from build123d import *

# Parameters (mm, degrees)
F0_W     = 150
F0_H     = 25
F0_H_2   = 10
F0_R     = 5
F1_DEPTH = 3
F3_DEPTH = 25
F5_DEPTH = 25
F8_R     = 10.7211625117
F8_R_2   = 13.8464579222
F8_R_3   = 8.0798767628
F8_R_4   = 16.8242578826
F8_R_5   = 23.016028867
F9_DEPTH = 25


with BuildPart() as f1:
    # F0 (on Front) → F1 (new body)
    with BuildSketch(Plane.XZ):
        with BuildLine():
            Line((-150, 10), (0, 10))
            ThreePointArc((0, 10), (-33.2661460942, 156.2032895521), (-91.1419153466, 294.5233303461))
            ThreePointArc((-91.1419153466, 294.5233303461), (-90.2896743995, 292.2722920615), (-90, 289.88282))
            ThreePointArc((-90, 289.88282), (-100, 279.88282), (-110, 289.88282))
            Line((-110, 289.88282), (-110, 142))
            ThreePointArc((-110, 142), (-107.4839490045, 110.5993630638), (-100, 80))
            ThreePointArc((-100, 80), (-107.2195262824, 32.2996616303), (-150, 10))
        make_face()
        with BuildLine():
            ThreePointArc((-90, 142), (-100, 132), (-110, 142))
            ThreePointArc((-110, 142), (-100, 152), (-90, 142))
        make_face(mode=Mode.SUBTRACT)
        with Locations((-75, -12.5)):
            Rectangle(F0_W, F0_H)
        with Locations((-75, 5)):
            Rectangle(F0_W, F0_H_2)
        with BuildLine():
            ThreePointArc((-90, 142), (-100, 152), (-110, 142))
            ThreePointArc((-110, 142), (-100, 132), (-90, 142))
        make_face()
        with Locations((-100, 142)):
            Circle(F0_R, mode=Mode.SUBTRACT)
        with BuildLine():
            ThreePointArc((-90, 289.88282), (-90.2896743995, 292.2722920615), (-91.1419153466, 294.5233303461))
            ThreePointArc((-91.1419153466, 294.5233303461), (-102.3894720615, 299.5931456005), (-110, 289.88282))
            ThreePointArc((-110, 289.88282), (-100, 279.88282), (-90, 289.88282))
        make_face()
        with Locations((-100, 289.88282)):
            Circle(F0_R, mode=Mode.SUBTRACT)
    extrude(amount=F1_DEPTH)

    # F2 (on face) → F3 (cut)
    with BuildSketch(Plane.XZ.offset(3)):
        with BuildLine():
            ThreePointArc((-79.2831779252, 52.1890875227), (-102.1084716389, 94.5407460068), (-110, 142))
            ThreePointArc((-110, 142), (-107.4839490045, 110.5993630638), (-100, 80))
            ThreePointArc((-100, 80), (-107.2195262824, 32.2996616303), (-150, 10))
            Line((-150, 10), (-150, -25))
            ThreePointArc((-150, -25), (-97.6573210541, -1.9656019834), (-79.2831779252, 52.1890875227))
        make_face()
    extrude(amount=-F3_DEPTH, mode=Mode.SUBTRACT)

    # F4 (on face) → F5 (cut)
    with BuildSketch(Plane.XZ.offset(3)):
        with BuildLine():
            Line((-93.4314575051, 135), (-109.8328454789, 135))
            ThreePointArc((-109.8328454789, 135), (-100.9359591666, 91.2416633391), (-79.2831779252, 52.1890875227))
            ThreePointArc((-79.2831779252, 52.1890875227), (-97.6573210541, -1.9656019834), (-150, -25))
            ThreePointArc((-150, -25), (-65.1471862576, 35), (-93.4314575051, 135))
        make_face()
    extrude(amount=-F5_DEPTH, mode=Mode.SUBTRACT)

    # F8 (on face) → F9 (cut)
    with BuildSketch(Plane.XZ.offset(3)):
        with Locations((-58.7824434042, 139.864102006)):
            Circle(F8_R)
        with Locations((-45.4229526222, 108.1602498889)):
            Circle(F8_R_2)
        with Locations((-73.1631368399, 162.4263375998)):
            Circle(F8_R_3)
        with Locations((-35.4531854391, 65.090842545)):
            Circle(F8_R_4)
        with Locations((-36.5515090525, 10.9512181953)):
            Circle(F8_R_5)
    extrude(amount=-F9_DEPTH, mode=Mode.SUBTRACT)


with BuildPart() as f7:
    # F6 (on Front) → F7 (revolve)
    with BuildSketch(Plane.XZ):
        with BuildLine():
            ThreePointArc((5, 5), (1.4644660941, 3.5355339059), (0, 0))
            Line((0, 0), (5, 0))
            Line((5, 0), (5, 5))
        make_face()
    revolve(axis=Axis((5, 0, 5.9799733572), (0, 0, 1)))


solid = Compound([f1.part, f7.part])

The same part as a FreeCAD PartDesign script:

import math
import FreeCAD as App
import Part
import Sketcher

V = App.Vector

doc = App.newDocument("Part")
body = doc.addObject("PartDesign::Body", "Body")

sketch1 = doc.addObject("Sketcher::SketchObject", "Sketch")
body.addObject(sketch1)
sketch1.AttachmentSupport = (doc.XZ_Plane, [""])
sketch1.MapMode = "FlatFace"
sketch1.addGeometry([
    Part.LineSegment(V(-110, 290, 0), V(-110, 142, 0)),
    Part.ArcOfCircle(Part.Circle(V(87, 142, 0), V(0, 0, 1), 197), math.radians(180), math.radians(198.32)),
    Part.ArcOfCircle(Part.Circle(V(-151, 63, 0), V(0, 0, 1), 53), math.radians(-89), math.radians(18)),
    Part.LineSegment(V(-150, 10, 0), V(-150, -25, 0)),
    Part.LineSegment(V(-150, -25, 0), V(0, -25, 0)),
    Part.LineSegment(V(0, -25, 0), V(0, 10, 0)),
    Part.ArcOfCircle(Part.Circle(V(-862, -109, 0), V(0, 0, 1), 870), math.radians(7.88), math.radians(27.65)),
    Part.ArcOfCircle(Part.Circle(V(-100, 290, 0), V(0, 0, 1), 10), math.radians(28), math.radians(180)),
    Part.Circle(V(-100, 142, 0), V(0, 0, 1), 5),
    Part.Circle(V(-100, 290, 0), V(0, 0, 1), 5),
], False)
sketch1.addConstraint([
    Sketcher.Constraint("Tangent", 0, 2, 1, 1),
    Sketcher.Constraint("Tangent", 1, 2, 2, 2),
    Sketcher.Constraint("Coincident", 2, 1, 3, 1),
    Sketcher.Constraint("Coincident", 3, 2, 4, 1),
    Sketcher.Constraint("Coincident", 4, 2, 5, 1),
    Sketcher.Constraint("Coincident", 5, 2, 6, 1),
    Sketcher.Constraint("Tangent", 6, 2, 7, 1),
    Sketcher.Constraint("Tangent", 7, 2, 0, 1),
    Sketcher.Constraint("Vertical", 0),
    Sketcher.Constraint("Vertical", 3),
    Sketcher.Constraint("Horizontal", 4),
    Sketcher.Constraint("Vertical", 5),
    Sketcher.Constraint("Coincident", 9, 3, 7, 3),
    Sketcher.Constraint("Equal", 8, 9),
    Sketcher.Constraint("PointOnObject", 4, 2, -2),
    Sketcher.Constraint("Horizontal", 1, 3, 8, 3),
    Sketcher.Constraint("Horizontal", 2, 1, 5, 2),
    Sketcher.Constraint("Vertical", 7, 3, 8, 3),
    Sketcher.Constraint("Vertical", 9, 3, 1, 2),
    Sketcher.Constraint("Diameter", 8, 10.0),
    Sketcher.Constraint("Radius", 6, 870.0),
    Sketcher.Constraint("Radius", 7, 10.0),
    Sketcher.Constraint("Radius", 1, 197.2),
    Sketcher.Constraint("DistanceX", 4, 1, 4, 2, 150.0),
    Sketcher.Constraint("DistanceY", 3, 2, 3, 1, 35.0),
    Sketcher.Constraint("DistanceY", -1, 1, 1, 3, 142.0),
    Sketcher.Constraint("DistanceX", 7, 3, -1, 1, 100.0),
    Sketcher.Constraint("DistanceY", -1, 1, 2, 1, 10.0),
    Sketcher.Constraint("DistanceY", 0, 2, 0, 1, 147.88282),
])
pad1 = doc.addObject("PartDesign::Pad", "Pad")
body.addObject(pad1)
pad1.Profile = sketch1
pad1.Length = 3

sketch2 = doc.addObject("Sketcher::SketchObject", "Sketch001")
body.addObject(sketch2)
sketch2.AttachmentSupport = (doc.XZ_Plane, [""])
sketch2.MapMode = "FlatFace"
sketch2.AttachmentOffset = App.Placement(V(0, 0, 3), App.Rotation())
sketch2.addGeometry([
    Part.ArcOfCircle(Part.Circle(V(37, 142, 0), V(0, 0, 1), 147), math.radians(180), math.radians(218)),
    Part.ArcOfCircle(Part.Circle(V(87, 142, 0), V(0, 0, 1), 197), math.radians(180), math.radians(198.32)),
    Part.ArcOfCircle(Part.Circle(V(-151, 63, 0), V(0, 0, 1), 53), math.radians(-89), math.radians(18)),
    Part.LineSegment(V(-150, 10, 0), V(-150, -25, 0)),
    Part.ArcOfCircle(Part.Circle(V(-150, 46, 0), V(0, 0, 1), 71), math.radians(-90), math.radians(5)),
], False)
sketch2.addConstraint([
    Sketcher.Constraint("Tangent", 0, 1, 1, 1),
    Sketcher.Constraint("Tangent", 1, 2, 2, 2),
    Sketcher.Constraint("Coincident", 2, 1, 3, 1),
    Sketcher.Constraint("Coincident", 3, 2, 4, 1),
    Sketcher.Constraint("Coincident", 4, 2, 0, 2),
    Sketcher.Constraint("Vertical", 3),
    Sketcher.Constraint("Horizontal", 0, 3, 1, 3),
    Sketcher.Constraint("Vertical", 4, 3, 2, 1),
    Sketcher.Constraint("Radius", 1, 197.2),
    Sketcher.Constraint("DistanceY", 3, 2, 3, 1, 35.0),
    Sketcher.Constraint("DistanceY", -1, 1, 0, 3, 142.0),
    Sketcher.Constraint("DistanceX", 4, 3, -1, 1, 150.0),
    Sketcher.Constraint("DistanceX", 0, 1, -1, 1, 110.0),
    Sketcher.Constraint("DistanceX", 1, 2, -1, 1, 100.0),
    Sketcher.Constraint("DistanceY", -1, 1, 2, 1, 10.0),
    Sketcher.Constraint("Radius", 4, 70.98817),
    Sketcher.Constraint("Radius", 0, 146.654545),
])
pocket1 = doc.addObject("PartDesign::Pocket", "Pocket")
body.addObject(pocket1)
pocket1.Profile = sketch2
pocket1.Length = 25

sketch3 = doc.addObject("Sketcher::SketchObject", "Sketch002")
body.addObject(sketch3)
sketch3.AttachmentSupport = (doc.XZ_Plane, [""])
sketch3.MapMode = "FlatFace"
sketch3.AttachmentOffset = App.Placement(V(0, 0, 3), App.Rotation())
sketch3.addGeometry([
    Part.LineSegment(V(-93, 135, 0), V(-110, 135, 0)),
    Part.ArcOfCircle(Part.Circle(V(37, 142, 0), V(0, 0, 1), 147), math.radians(-177), math.radians(-142)),
    Part.ArcOfCircle(Part.Circle(V(-150, 46, 0), V(0, 0, 1), 71), math.radians(-90), math.radians(5)),
    Part.ArcOfCircle(Part.Circle(V(-150, 65, 0), V(0, 0, 1), 90), math.radians(-90), math.radians(51)),
], False)
sketch3.addConstraint([
    Sketcher.Constraint("Coincident", 0, 2, 1, 1),
    Sketcher.Constraint("Coincident", 1, 2, 2, 2),
    Sketcher.Constraint("Tangent", 2, 1, 3, 1),
    Sketcher.Constraint("Coincident", 3, 2, 0, 1),
    Sketcher.Constraint("Horizontal", 0),
    Sketcher.Constraint("Vertical", 2, 3, 3, 3),
    Sketcher.Constraint("Radius", 3, 90.0),
    Sketcher.Constraint("DistanceY", -1, 1, 1, 3, 142.0),
    Sketcher.Constraint("DistanceX", 2, 3, -1, 1, 150.0),
    Sketcher.Constraint("DistanceY", -1, 1, 3, 3, 65.0),
    Sketcher.Constraint("DistanceY", -1, 1, 0, 2, 135.0),
    Sketcher.Constraint("Radius", 2, 70.98817),
    Sketcher.Constraint("Radius", 1, 146.654545),
    Sketcher.Constraint("DistanceX", 0, 2, 0, 1, 16.401388),
])
pocket2 = doc.addObject("PartDesign::Pocket", "Pocket001")
body.addObject(pocket2)
pocket2.Profile = sketch3
pocket2.Length = 25

sketch4 = doc.addObject("Sketcher::SketchObject", "Sketch003")
body.addObject(sketch4)
sketch4.AttachmentSupport = (doc.XZ_Plane, [""])
sketch4.MapMode = "FlatFace"
sketch4.AttachmentOffset = App.Placement(V(0, 0, 3), App.Rotation())
sketch4.addGeometry([
    Part.Circle(V(-59, 140, 0), V(0, 0, 1), 11),
    Part.Circle(V(-45, 108, 0), V(0, 0, 1), 14),
    Part.Circle(V(-73, 162, 0), V(0, 0, 1), 8),
    Part.Circle(V(-35, 65, 0), V(0, 0, 1), 17),
    Part.Circle(V(-37, 11, 0), V(0, 0, 1), 23),
], False)
sketch4.addConstraint([
    Sketcher.Constraint("Diameter", 0, 21.442325),
    Sketcher.Constraint("Diameter", 1, 27.692916),
    Sketcher.Constraint("Diameter", 2, 16.159754),
    Sketcher.Constraint("Diameter", 3, 33.648516),
    Sketcher.Constraint("Diameter", 4, 46.032058),
    Sketcher.Constraint("DistanceY", -1, 1, 1, 3, 108.16025),
    Sketcher.Constraint("DistanceX", 4, 3, -1, 1, 36.551509),
    Sketcher.Constraint("DistanceY", -1, 1, 4, 3, 10.951218),
    Sketcher.Constraint("DistanceX", 0, 3, 1, 3, 13.359491),
    Sketcher.Constraint("DistanceY", 3, 3, 0, 3, 74.773259),
    Sketcher.Constraint("DistanceX", 2, 3, 3, 3, 37.709951),
    Sketcher.Constraint("DistanceY", 4, 3, 2, 3, 151.475119),
    Sketcher.Constraint("DistanceX", 0, 3, -1, 1, 58.782443),
    Sketcher.Constraint("DistanceY", -1, 1, 0, 3, 139.864102),
    Sketcher.Constraint("DistanceX", 2, 3, -1, 1, 73.163137),
])
pocket3 = doc.addObject("PartDesign::Pocket", "Pocket002")
body.addObject(pocket3)
pocket3.Profile = sketch4
pocket3.Length = 25
body2 = doc.addObject("PartDesign::Body", "Body001")

sketch5 = doc.addObject("Sketcher::SketchObject", "Sketch004")
body2.addObject(sketch5)
sketch5.AttachmentSupport = (doc.getObject("XZ_Plane001"), [""])
sketch5.MapMode = "FlatFace"
sketch5.addGeometry([
    Part.ArcOfCircle(Part.Circle(V(5, 0, 0), V(0, 0, 1), 5), math.radians(90), math.radians(180)),
    Part.LineSegment(V(0, 0, 0), V(5, 0, 0)),
    Part.LineSegment(V(5, 0, 0), V(5, 5, 0)),
], False)
sketch5.addGeometry(Part.LineSegment(V(5, 0, 0), V(5, 5, 0)), True)
sketch5.addConstraint([
    Sketcher.Constraint("Coincident", 0, 2, 1, 1),
    Sketcher.Constraint("Coincident", 1, 2, 2, 1),
    Sketcher.Constraint("Coincident", 2, 2, 0, 1),
    Sketcher.Constraint("Horizontal", 1),
    Sketcher.Constraint("Vertical", 2),
    Sketcher.Constraint("Vertical", 3),
    Sketcher.Constraint("Coincident", 0, 2, -1, 1),
    Sketcher.Constraint("Coincident", 1, 2, 0, 3),
    Sketcher.Constraint("Coincident", 3, 1, 0, 3),
    Sketcher.Constraint("Equal", 2, 3),
    Sketcher.Constraint("Radius", 0, 5.0),
])
revolution = doc.addObject("PartDesign::Revolution", "Revolution")
body2.addObject(revolution)
revolution.Profile = sketch5
revolution.ReferenceAxis = (sketch5, ["Axis0"])
revolution.Angle = 360

doc.recompute()
